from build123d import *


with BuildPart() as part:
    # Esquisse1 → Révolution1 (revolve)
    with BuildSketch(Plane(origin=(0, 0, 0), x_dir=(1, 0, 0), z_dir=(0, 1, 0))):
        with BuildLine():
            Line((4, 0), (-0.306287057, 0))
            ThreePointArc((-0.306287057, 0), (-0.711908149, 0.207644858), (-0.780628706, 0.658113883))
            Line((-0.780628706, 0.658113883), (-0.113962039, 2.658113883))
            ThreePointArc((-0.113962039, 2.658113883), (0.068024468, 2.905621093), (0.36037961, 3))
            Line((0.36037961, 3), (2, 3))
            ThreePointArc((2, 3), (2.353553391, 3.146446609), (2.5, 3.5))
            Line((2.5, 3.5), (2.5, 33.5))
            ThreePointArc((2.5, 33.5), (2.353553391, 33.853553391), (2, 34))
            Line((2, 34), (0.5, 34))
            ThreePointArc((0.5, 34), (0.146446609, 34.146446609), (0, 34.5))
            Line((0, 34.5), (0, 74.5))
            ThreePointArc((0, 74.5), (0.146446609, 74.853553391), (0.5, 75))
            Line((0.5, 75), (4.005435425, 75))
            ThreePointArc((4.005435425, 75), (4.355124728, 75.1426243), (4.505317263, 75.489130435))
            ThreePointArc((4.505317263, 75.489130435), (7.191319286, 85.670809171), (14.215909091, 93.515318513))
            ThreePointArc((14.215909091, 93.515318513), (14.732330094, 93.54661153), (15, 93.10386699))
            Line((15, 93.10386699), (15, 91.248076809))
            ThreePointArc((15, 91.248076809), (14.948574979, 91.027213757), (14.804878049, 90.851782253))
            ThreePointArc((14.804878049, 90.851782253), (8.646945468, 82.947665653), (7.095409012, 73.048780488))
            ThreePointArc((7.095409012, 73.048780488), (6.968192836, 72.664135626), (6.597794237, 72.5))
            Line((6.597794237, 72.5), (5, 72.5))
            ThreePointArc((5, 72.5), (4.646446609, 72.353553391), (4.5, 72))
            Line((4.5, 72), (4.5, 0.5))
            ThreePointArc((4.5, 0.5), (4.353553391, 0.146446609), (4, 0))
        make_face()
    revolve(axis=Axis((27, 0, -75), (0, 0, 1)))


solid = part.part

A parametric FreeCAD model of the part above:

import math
import FreeCAD as App
import Part
import Sketcher

V = App.Vector
Q = App.Units.Quantity

doc = App.newDocument("Part")
params = doc.addObject("Spreadsheet::Sheet", "Params")
for row, (alias, value) in enumerate([
    ("sketch1_radius", "20 mm"),
    ("sketch1_radius2", "0.5 mm"),
    ("sketch1_radius3", "22.5 mm"),
    ("sketch1_height", "40 mm"),
    ("sketch1_height2", "30 mm"),
    ("revolution_angle", "360 deg"),
], start=1):
    params.set(f"A{row}", alias)
    params.set(f"B{row}", "=" + value)
    params.setAlias(f"B{row}", alias)

body = doc.addObject("PartDesign::Body", "Body")

# Sketch on XZ plane
sketch1 = body.newObject("Sketcher::SketchObject", "Sketch")
sketch1.AttachmentSupport = (doc.getObject("XZ_Plane"), [""])
sketch1.MapMode = "FlatFace"
sketch1.addGeometry([
    Part.LineSegment(V(-0.31, 0, 0), V(4, 0, 0)),  # 0
    Part.ArcOfCircle(Part.Circle(V(4, -0.5, 0), V(0, 0, 1), 0.5), math.radians(0), math.radians(90)),  # 1
    Part.LineSegment(V(4.5, -0.5, 0), V(4.5, -72, 0)),  # 2
    Part.ArcOfCircle(Part.Circle(V(5, -72, 0), V(0, 0, 1), 0.5), math.radians(180), math.radians(270)),  # 3
    Part.LineSegment(V(5, -72.5, 0), V(6.6, -72.5, 0)),  # 4
    Part.ArcOfCircle(Part.Circle(V(6.6, -73, 0), V(0, 0, 1), 0.5), math.radians(-6), math.radians(90)),  # 5
    Part.ArcOfCircle(Part.Circle(V(27, -75, 0), V(0, 0, 1), 20), math.radians(174), math.radians(232)),  # 6
    Part.ArcOfCircle(Part.Circle(V(14.5, -91.25, 0), V(0, 0, 1), 0.5), math.radians(0), math.radians(52)),  # 7
    Part.LineSegment(V(15, -91.25, 0), V(15, -93.1, 0)),  # 8
    Part.ArcOfCircle(Part.Circle(V(14.5, -93.1, 0), V(0, 0, 1), 0.5), math.radians(-125), math.radians(0)),  # 9
    Part.ArcOfCircle(Part.Circle(V(27, -75, 0), V(0, 0, 1), 22.5), math.radians(-179), math.radians(-125)),  # 10
    Part.ArcOfCircle(Part.Circle(V(4.01, -75.5, 0), V(0, 0, 1), 0.5), math.radians(1), math.radians(90)),  # 11
    Part.LineSegment(V(4.01, -75, 0), V(0.5, -75, 0)),  # 12
    Part.ArcOfCircle(Part.Circle(V(0.5, -74.5, 0), V(0, 0, 1), 0.5), math.radians(180), math.radians(270)),  # 13
    Part.LineSegment(V(0, -74.5, 0), V(0, -34.5, 0)),  # 14
    Part.ArcOfCircle(Part.Circle(V(0.5, -34.5, 0), V(0, 0, 1), 0.5), math.radians(90), math.radians(180)),  # 15
    Part.LineSegment(V(0.5, -34, 0), V(2, -34, 0)),  # 16
    Part.ArcOfCircle(Part.Circle(V(2, -33.5, 0), V(0, 0, 1), 0.5), math.radians(-90), math.radians(0)),  # 17
    Part.LineSegment(V(2.5, -33.5, 0), V(2.5, -3.5, 0)),  # 18
    Part.ArcOfCircle(Part.Circle(V(2, -3.5, 0), V(0, 0, 1), 0.5), math.radians(0), math.radians(90)),  # 19
    Part.LineSegment(V(2, -3, 0), V(0.36, -3, 0)),  # 20
    Part.ArcOfCircle(Part.Circle(V(0.36, -2.5, 0), V(0, 0, 1), 0.5), math.radians(-162), math.radians(-90)),  # 21
    Part.LineSegment(V(-0.11, -2.66, 0), V(-0.78, -0.66, 0)),  # 22
    Part.ArcOfCircle(Part.Circle(V(-0.31, -0.5, 0), V(0, 0, 1), 0.5), math.radians(90), math.radians(198)),  # 23
], False)
sketch1.addGeometry(Part.LineSegment(V(27, -93.52, 0), V(27, 0, 0)), True)  # axis
sketch1.addConstraint([
    Sketcher.Constraint("Tangent", 0, 2, 1, 2),
    Sketcher.Constraint("Tangent", 1, 1, 2, 1),
    Sketcher.Constraint("Tangent", 2, 2, 3, 1),
    Sketcher.Constraint("Tangent", 3, 2, 4, 1),
    Sketcher.Constraint("Tangent", 4, 2, 5, 2),
    Sketcher.Constraint("Tangent", 5, 1, 6, 1),
    Sketcher.Constraint("Tangent", 6, 2, 7, 2),
    Sketcher.Constraint("Tangent", 7, 1, 8, 1),
    Sketcher.Constraint("Tangent", 8, 2, 9, 2),
    Sketcher.Constraint("Tangent", 9, 1, 10, 2),
    Sketcher.Constraint("Tangent", 10, 1, 11, 1),
    Sketcher.Constraint("Tangent", 11, 2, 12, 1),
    Sketcher.Constraint("Tangent", 12, 2, 13, 2),
    Sketcher.Constraint("Tangent", 13, 1, 14, 1),
    Sketcher.Constraint("Tangent", 14, 2, 15, 2),
    Sketcher.Constraint("Tangent", 15, 1, 16, 1),
    Sketcher.Constraint("Tangent", 16, 2, 17, 1),
    Sketcher.Constraint("Tangent", 17, 2, 18, 1),
    Sketcher.Constraint("Tangent", 18, 2, 19, 1),
    Sketcher.Constraint("Tangent", 19, 2, 20, 1),
    Sketcher.Constraint("Tangent", 20, 2, 21, 2),
    Sketcher.Constraint("Tangent", 21, 1, 22, 1),
    Sketcher.Constraint("Tangent", 22, 2, 23, 2),
    Sketcher.Constraint("Tangent", 23, 1, 0, 1),
    Sketcher.Constraint("Horizontal", 0),
    Sketcher.Constraint("Vertical", 2),
    Sketcher.Constraint("Horizontal", 4),
    Sketcher.Constraint("Vertical", 8),
    Sketcher.Constraint("Horizontal", 12),
    Sketcher.Constraint("Vertical", 14),
    Sketcher.Constraint("Horizontal", 16),
    Sketcher.Constraint("Vertical", 18),
    Sketcher.Constraint("Horizontal", 20),
    Sketcher.Constraint("Vertical", 24),
    Sketcher.Constraint("Coincident", 10, 3, 6, 3),
    Sketcher.Constraint("Equal", 1, 3),
    Sketcher.Constraint("Equal", 3, 5),
    Sketcher.Constraint("Equal", 5, 7),
    Sketcher.Constraint("Equal", 7, 9),
    Sketcher.Constraint("Equal", 9, 11),
    Sketcher.Constraint("Equal", 11, 13),
    Sketcher.Constraint("Equal", 13, 15),
    Sketcher.Constraint("Equal", 15, 17),
    Sketcher.Constraint("Equal", 17, 19),
    Sketcher.Constraint("Equal", 19, 21),
    Sketcher.Constraint("Equal", 21, 23),
    Sketcher.Constraint("PointOnObject", 0, 2, -1),
    Sketcher.Constraint("PointOnObject", 13, 1, -2),
    Sketcher.Constraint("PointOnObject", 24, 2, -1),
    Sketcher.Constraint("Horizontal", 10, 3, 11, 2),
    Sketcher.Constraint("Horizontal", 9, 1, 24, 1),
    Sketcher.Constraint("Vertical", 10, 3, 24, 1),
    Sketcher.Constraint("Radius", 6, Q("20 mm")),
    Sketcher.Constraint("Radius", 1, Q("0.5 mm")),
    Sketcher.Constraint("Radius", 10, Q("22.5 mm")),
    Sketcher.Constraint("DistanceY", 14, 1, 14, 2, Q("40 mm")),
    Sketcher.Constraint("DistanceY", 18, 1, 18, 2, Q("30 mm")),
    Sketcher.Constraint("DistanceX", 16, 1, 16, 2, Q("1.5 mm")),
    Sketcher.Constraint("DistanceY", 2, 2, 2, 1, Q("71.5 mm")),
    Sketcher.Constraint("DistanceX", -1, 1, 1, 3, Q("4 mm")),
    Sketcher.Constraint("DistanceX", -1, 1, 6, 3, Q("27 mm")),
    Sketcher.Constraint("DistanceY", 6, 3, -1, 1, Q("75 mm")),
    Sketcher.Constraint("DistanceX", -1, 1, 7, 1, Q("15 mm")),
    Sketcher.Constraint("DistanceX", 20, 2, 20, 1, Q("1.63962 mm")),
    Sketcher.Constraint("DistanceX", 0, 1, 0, 2, Q("4.306287 mm")),
])
sketch1.setExpression("Constraints[52]", "Params.sketch1_radius")
sketch1.setExpression("Constraints[53]", "Params.sketch1_radius2")
sketch1.setExpression("Constraints[54]", "Params.sketch1_radius3")
sketch1.setExpression("Constraints[55]", "Params.sketch1_height")
sketch1.setExpression("Constraints[56]", "Params.sketch1_height2")
revolution = body.newObject("PartDesign::Revolution", "Revolution")
revolution.Profile = sketch1
revolution.ReferenceAxis = (sketch1, ["Axis0"])
revolution.setExpression("Angle", "Params.revolution_angle")

doc.recompute()
